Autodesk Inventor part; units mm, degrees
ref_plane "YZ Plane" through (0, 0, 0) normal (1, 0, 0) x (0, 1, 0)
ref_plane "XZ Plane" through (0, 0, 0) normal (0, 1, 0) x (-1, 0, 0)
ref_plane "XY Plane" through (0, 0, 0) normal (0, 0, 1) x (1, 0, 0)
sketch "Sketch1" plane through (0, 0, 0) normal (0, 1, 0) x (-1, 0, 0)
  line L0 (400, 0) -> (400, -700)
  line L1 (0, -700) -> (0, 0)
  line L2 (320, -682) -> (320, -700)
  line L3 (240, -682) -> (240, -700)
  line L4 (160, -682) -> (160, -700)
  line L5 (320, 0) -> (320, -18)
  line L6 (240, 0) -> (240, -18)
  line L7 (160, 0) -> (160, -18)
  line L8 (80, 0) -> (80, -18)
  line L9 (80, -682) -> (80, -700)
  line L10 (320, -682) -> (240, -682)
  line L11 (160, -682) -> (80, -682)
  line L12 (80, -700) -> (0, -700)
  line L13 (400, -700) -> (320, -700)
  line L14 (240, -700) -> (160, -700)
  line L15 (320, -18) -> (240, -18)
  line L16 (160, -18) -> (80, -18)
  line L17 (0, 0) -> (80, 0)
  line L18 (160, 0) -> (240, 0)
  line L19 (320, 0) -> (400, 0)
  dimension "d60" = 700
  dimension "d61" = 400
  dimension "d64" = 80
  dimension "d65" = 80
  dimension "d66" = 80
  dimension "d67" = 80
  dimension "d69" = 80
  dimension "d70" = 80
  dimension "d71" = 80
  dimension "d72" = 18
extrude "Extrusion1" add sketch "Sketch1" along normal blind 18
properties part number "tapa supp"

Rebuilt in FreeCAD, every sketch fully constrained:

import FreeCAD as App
import Part
import Sketcher

doc = App.newDocument("Part")
body = doc.addObject("PartDesign::Body", "Body")

# Sketch on XZ plane
sketch1 = body.newObject("Sketcher::SketchObject", "Sketch")
sketch1.AttachmentSupport = (doc.getObject("XZ_Plane"), [""])
sketch1.MapMode = "FlatFace"
sketch1.addGeometry(Part.LineSegment(App.Vector(-400, -700, 0), App.Vector(-400, 0, 0)), False)
sketch1.addGeometry(Part.LineSegment(App.Vector(-400, 0, 0), App.Vector(-320, 0, 0)), False)
sketch1.addGeometry(Part.LineSegment(App.Vector(-320, 0, 0), App.Vector(-320, -18, 0)), False)
sketch1.addGeometry(Part.LineSegment(App.Vector(-320, -18, 0), App.Vector(-240, -18, 0)), False)
sketch1.addGeometry(Part.LineSegment(App.Vector(-240, -18, 0), App.Vector(-240, 0, 0)), False)
sketch1.addGeometry(Part.LineSegment(App.Vector(-240, 0, 0), App.Vector(-160, 0, 0)), False)
sketch1.addGeometry(Part.LineSegment(App.Vector(-160, 0, 0), App.Vector(-160, -18, 0)), False)
sketch1.addGeometry(Part.LineSegment(App.Vector(-160, -18, 0), App.Vector(-80, -18, 0)), False)
sketch1.addGeometry(Part.LineSegment(App.Vector(-80, -18, 0), App.Vector(-80, 0, 0)), False)
sketch1.addGeometry(Part.LineSegment(App.Vector(-80, 0, 0), App.Vector(0, 0, 0)), False)
sketch1.addGeometry(Part.LineSegment(App.Vector(0, 0, 0), App.Vector(0, -700, 0)), False)
sketch1.addGeometry(Part.LineSegment(App.Vector(0, -700, 0), App.Vector(-80, -700, 0)), False)
sketch1.addGeometry(Part.LineSegment(App.Vector(-80, -700, 0), App.Vector(-80, -682, 0)), False)
sketch1.addGeometry(Part.LineSegment(App.Vector(-80, -682, 0), App.Vector(-160, -682, 0)), False)
sketch1.addGeometry(Part.LineSegment(App.Vector(-160, -682, 0), App.Vector(-160, -700, 0)), False)
sketch1.addGeometry(Part.LineSegment(App.Vector(-160, -700, 0), App.Vector(-240, -700, 0)), False)
sketch1.addGeometry(Part.LineSegment(App.Vector(-240, -700, 0), App.Vector(-240, -682, 0)), False)
sketch1.addGeometry(Part.LineSegment(App.Vector(-240, -682, 0), App.Vector(-320, -682, 0)), False)
sketch1.addGeometry(Part.LineSegment(App.Vector(-320, -682, 0), App.Vector(-320, -700, 0)), False)
sketch1.addGeometry(Part.LineSegment(App.Vector(-320, -700, 0), App.Vector(-400, -700, 0)), False)
sketch1.addConstraint(Sketcher.Constraint("Coincident", 0, 2, 1, 1))
sketch1.addConstraint(Sketcher.Constraint("Coincident", 1, 2, 2, 1))
sketch1.addConstraint(Sketcher.Constraint("Coincident", 2, 2, 3, 1))
sketch1.addConstraint(Sketcher.Constraint("Coincident", 3, 2, 4, 1))
sketch1.addConstraint(Sketcher.Constraint("Coincident", 4, 2, 5, 1))
sketch1.addConstraint(Sketcher.Constraint("Coincident", 5, 2, 6, 1))
sketch1.addConstraint(Sketcher.Constraint("Coincident", 6, 2, 7, 1))
sketch1.addConstraint(Sketcher.Constraint("Coincident", 7, 2, 8, 1))
sketch1.addConstraint(Sketcher.Constraint("Coincident", 8, 2, 9, 1))
sketch1.addConstraint(Sketcher.Constraint("Coincident", 9, 2, 10, 1))
sketch1.addConstraint(Sketcher.Constraint("Coincident", 10, 2, 11, 1))
sketch1.addConstraint(Sketcher.Constraint("Coincident", 11, 2, 12, 1))
sketch1.addConstraint(Sketcher.Constraint("Coincident", 12, 2, 13, 1))
sketch1.addConstraint(Sketcher.Constraint("Coincident", 13, 2, 14, 1))
sketch1.addConstraint(Sketcher.Constraint("Coincident", 14, 2, 15, 1))
sketch1.addConstraint(Sketcher.Constraint("Coincident", 15, 2, 16, 1))
sketch1.addConstraint(Sketcher.Constraint("Coincident", 16, 2, 17, 1))
sketch1.addConstraint(Sketcher.Constraint("Coincident", 17, 2, 18, 1))
sketch1.addConstraint(Sketcher.Constraint("Coincident", 18, 2, 19, 1))
sketch1.addConstraint(Sketcher.Constraint("Coincident", 19, 2, 0, 1))
sketch1.addConstraint(Sketcher.Constraint("Vertical", 0))
sketch1.addConstraint(Sketcher.Constraint("Horizontal", 1))
sketch1.addConstraint(Sketcher.Constraint("Vertical", 2))
sketch1.addConstraint(Sketcher.Constraint("Horizontal", 3))
sketch1.addConstraint(Sketcher.Constraint("Vertical", 4))
sketch1.addConstraint(Sketcher.Constraint("Horizontal", 5))
sketch1.addConstraint(Sketcher.Constraint("Vertical", 6))
sketch1.addConstraint(Sketcher.Constraint("Horizontal", 7))
sketch1.addConstraint(Sketcher.Constraint("Vertical", 8))
sketch1.addConstraint(Sketcher.Constraint("Horizontal", 9))
sketch1.addConstraint(Sketcher.Constraint("Vertical", 10))
sketch1.addConstraint(Sketcher.Constraint("Horizontal", 11))
sketch1.addConstraint(Sketcher.Constraint("Vertical", 12))
sketch1.addConstraint(Sketcher.Constraint("Horizontal", 13))
sketch1.addConstraint(Sketcher.Constraint("Vertical", 14))
sketch1.addConstraint(Sketcher.Constraint("Horizontal", 15))
sketch1.addConstraint(Sketcher.Constraint("Vertical", 16))
sketch1.addConstraint(Sketcher.Constraint("Horizontal", 17))
sketch1.addConstraint(Sketcher.Constraint("Vertical", 18))
sketch1.addConstraint(Sketcher.Constraint("Horizontal", 19))
sketch1.addConstraint(Sketcher.Constraint("Coincident", 9, 2, -1, 1))
sketch1.addConstraint(Sketcher.Constraint("PointOnObject", 0, 2, -1))
sketch1.addConstraint(Sketcher.Constraint("PointOnObject", 4, 2, -1))
sketch1.addConstraint(Sketcher.Constraint("Horizontal", 3, 2, 6, 2))
sketch1.addConstraint(Sketcher.Constraint("Horizontal", 11, 2, 14, 2))
sketch1.addConstraint(Sketcher.Constraint("Horizontal", 13, 2, 16, 2))
sketch1.addConstraint(Sketcher.Constraint("Horizontal", 15, 2, 18, 2))
sketch1.addConstraint(Sketcher.Constraint("Vertical", 8, 2, 11, 2))
sketch1.addConstraint(Sketcher.Constraint("Vertical", 6, 2, 13, 2))
sketch1.addConstraint(Sketcher.Constraint("Vertical", 4, 2, 15, 2))
sketch1.addConstraint(Sketcher.Constraint("Vertical", 2, 2, 17, 2))
sketch1.addConstraint(Sketcher.Constraint("Equal", 1, 3))
sketch1.addConstraint(Sketcher.Constraint("Equal", 3, 5))
sketch1.addConstraint(Sketcher.Constraint("Equal", 5, 7))
sketch1.addConstraint(Sketcher.Constraint("Equal", 7, 9))
sketch1.addConstraint(Sketcher.Constraint("Equal", 8, 12))
sketch1.addConstraint(Sketcher.Constraint("DistanceX", 1, 1, 1, 2, 80.0))
sketch1.addConstraint(Sketcher.Constraint("DistanceY", 0, 1, 0, 2, 700.0))
sketch1.addConstraint(Sketcher.Constraint("DistanceY", 2, 2, 2, 1, 18.0))
pad1 = body.newObject("PartDesign::Pad", "Pad")
pad1.Profile = sketch1
pad1.Length = 18
pad1.Reversed = True

doc.recompute()
